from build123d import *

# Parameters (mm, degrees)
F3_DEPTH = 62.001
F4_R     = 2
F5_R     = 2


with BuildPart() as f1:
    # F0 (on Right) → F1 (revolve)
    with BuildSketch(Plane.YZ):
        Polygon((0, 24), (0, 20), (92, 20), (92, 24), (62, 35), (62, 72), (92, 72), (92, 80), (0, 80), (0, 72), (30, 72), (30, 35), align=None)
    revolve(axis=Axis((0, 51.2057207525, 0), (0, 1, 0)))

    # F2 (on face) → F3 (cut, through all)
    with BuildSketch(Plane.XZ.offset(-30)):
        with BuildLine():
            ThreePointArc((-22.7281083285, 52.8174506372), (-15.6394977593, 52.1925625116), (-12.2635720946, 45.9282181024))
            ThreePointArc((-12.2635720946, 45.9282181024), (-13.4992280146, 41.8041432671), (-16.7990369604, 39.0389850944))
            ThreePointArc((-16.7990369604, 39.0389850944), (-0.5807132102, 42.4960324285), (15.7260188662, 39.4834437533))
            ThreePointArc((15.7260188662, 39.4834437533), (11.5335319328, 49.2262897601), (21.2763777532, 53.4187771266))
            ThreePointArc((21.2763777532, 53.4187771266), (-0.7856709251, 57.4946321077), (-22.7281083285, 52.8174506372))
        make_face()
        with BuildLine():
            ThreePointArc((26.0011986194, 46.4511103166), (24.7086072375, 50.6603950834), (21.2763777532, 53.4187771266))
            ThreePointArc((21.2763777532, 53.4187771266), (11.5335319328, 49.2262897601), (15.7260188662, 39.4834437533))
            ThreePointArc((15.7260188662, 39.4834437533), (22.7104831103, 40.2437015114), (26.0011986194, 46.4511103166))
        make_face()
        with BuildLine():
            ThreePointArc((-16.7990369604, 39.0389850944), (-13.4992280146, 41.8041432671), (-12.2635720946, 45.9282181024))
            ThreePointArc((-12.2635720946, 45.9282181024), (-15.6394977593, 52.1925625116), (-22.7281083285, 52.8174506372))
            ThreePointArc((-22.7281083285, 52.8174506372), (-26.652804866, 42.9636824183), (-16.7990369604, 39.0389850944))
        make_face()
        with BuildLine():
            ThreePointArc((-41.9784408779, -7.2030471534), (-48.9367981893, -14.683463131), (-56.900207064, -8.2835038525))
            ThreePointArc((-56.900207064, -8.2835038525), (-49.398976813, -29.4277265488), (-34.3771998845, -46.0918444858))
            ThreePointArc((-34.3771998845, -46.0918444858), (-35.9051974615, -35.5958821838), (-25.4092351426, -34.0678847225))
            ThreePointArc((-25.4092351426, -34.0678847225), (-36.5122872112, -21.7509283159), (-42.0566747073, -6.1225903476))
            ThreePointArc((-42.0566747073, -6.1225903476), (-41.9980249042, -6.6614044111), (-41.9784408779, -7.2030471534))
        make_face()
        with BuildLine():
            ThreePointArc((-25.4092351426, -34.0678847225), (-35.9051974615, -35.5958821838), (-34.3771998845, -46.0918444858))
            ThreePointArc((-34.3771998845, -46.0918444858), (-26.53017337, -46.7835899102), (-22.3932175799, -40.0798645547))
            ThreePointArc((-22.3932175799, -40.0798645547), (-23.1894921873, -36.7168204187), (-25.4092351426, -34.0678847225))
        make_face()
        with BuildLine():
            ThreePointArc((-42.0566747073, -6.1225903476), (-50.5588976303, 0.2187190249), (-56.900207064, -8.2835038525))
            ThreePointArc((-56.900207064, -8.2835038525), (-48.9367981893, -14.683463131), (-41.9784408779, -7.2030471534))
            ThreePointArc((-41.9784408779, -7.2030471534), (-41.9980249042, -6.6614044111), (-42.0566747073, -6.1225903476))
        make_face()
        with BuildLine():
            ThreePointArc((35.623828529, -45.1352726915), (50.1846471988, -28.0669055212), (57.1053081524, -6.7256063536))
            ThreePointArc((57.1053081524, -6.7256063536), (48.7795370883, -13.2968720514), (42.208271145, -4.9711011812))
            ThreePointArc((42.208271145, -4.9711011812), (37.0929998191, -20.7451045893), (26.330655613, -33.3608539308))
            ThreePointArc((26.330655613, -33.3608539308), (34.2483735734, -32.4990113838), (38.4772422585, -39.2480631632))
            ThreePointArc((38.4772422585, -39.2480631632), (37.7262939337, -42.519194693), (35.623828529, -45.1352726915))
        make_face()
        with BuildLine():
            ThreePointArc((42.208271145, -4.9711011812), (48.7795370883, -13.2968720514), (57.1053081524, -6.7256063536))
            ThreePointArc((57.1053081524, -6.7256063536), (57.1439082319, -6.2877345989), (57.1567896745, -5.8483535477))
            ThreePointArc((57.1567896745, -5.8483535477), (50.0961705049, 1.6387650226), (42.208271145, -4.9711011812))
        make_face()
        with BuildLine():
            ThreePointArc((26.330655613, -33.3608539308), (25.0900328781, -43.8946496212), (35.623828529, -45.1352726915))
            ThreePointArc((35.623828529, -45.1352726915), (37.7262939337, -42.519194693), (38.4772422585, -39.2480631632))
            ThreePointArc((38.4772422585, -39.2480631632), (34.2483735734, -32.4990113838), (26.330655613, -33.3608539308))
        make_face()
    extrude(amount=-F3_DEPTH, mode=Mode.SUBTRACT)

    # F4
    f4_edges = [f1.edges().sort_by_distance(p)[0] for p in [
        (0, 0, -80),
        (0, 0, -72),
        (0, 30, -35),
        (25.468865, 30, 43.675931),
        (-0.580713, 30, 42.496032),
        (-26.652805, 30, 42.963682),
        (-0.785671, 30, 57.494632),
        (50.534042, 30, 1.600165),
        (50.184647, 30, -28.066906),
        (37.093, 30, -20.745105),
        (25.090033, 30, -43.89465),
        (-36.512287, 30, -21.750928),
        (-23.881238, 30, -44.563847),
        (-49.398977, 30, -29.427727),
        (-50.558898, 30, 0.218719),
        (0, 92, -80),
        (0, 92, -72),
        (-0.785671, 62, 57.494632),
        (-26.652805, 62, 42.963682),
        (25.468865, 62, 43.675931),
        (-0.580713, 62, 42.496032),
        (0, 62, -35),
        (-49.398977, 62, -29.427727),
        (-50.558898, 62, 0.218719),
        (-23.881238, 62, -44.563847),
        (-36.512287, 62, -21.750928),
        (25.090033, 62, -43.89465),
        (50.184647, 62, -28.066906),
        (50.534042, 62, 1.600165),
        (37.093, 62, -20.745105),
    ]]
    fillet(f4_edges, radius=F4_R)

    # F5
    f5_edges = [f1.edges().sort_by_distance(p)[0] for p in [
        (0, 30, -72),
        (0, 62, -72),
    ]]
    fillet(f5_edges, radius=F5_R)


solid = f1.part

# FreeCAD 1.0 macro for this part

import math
import FreeCAD as App
import Part
import Sketcher
Q = App.Units.Quantity


def edges_at(feature, points):
    """Names of the edges that pass closest to the given points."""
    edges = feature.Shape.Edges
    near = lambda p: min(range(len(edges)), key=lambda i: edges[i].distToShape(Part.Vertex(*p))[0])
    return sorted({f"Edge{near(p) + 1}" for p in points})


def add_polygon(sketch, points):
    """Adds a closed chain of lines whose ends are joined by coincident constraints."""
    first, n = sketch.GeometryCount, len(points)
    for a, b in zip(points, points[1:] + points[:1]):
        sketch.addGeometry(Part.LineSegment(App.Vector(*a, 0), App.Vector(*b, 0)), False)
    for i in range(n):
        sketch.addConstraint(Sketcher.Constraint("Coincident", first + i, 2, first + (i + 1) % n, 1))

doc = App.newDocument("Part")
params = doc.addObject("Spreadsheet::Sheet", "Params")
for row, (alias, value) in enumerate([
    ("sketch1_width", "92 mm"),
    ("sketch1_width2", "30 mm"),
    ("sketch1_height", "4 mm"),
    ("sketch1_height2", "37 mm"),
    ("sketch1_height3", "8 mm"),
    ("revolution_angle", "360 deg"),
    ("sketch2_radius", "42.5 mm"),
    ("sketch2_radius2", "7.5 mm"),
    ("fillet_radius", "2 mm"),
    ("fillet2_radius", "2 mm"),
], start=1):
    params.set(f"A{row}", alias)
    params.set(f"B{row}", "=" + value)
    params.setAlias(f"B{row}", alias)

body = doc.addObject("PartDesign::Body", "Body")

# Sketch on YZ plane
sketch1 = body.newObject("Sketcher::SketchObject", "Sketch")
sketch1.AttachmentSupport = (doc.getObject("YZ_Plane"), [""])
sketch1.MapMode = "FlatFace"
add_polygon(sketch1, [(0, 24), (0, 20), (92, 20), (92, 24), (62, 35), (62, 72), (92, 72), (92, 80), (0, 80), (0, 72), (30, 72), (30, 35)])  # lines 0-11
sketch1.addConstraint([
    Sketcher.Constraint("Vertical", 0),
    Sketcher.Constraint("Horizontal", 1),
    Sketcher.Constraint("Vertical", 2),
    Sketcher.Constraint("Vertical", 4),
    Sketcher.Constraint("Horizontal", 5),
    Sketcher.Constraint("Vertical", 6),
    Sketcher.Constraint("Horizontal", 7),
    Sketcher.Constraint("Vertical", 8),
    Sketcher.Constraint("Horizontal", 9),
    Sketcher.Constraint("Vertical", 10),
    Sketcher.Constraint("PointOnObject", 0, 2, -2),
    Sketcher.Constraint("PointOnObject", 7, 2, -2),
    Sketcher.Constraint("Horizontal", 5, 2, 8, 2),
    Sketcher.Constraint("Horizontal", 3, 2, 10, 2),
    Sketcher.Constraint("Horizontal", 2, 2, 11, 2),
    Sketcher.Constraint("Vertical", 2, 2, 5, 2),
    Sketcher.Constraint("Equal", 5, 9),
    Sketcher.Constraint("DistanceX", 1, 1, 1, 2, Q("92 mm")),
    Sketcher.Constraint("DistanceX", 5, 1, 5, 2, Q("30 mm")),
    Sketcher.Constraint("DistanceY", 0, 2, 0, 1, Q("4 mm")),
    Sketcher.Constraint("DistanceY", 4, 1, 4, 2, Q("37 mm")),
    Sketcher.Constraint("DistanceY", 6, 1, 6, 2, Q("8 mm")),
    Sketcher.Constraint("DistanceY", -1, 1, 0, 2, Q("20 mm")),
    Sketcher.Constraint("DistanceY", -1, 1, 3, 2, Q("35 mm")),
])
sketch1.setExpression("Constraints[29]", "Params.sketch1_width")
sketch1.setExpression("Constraints[30]", "Params.sketch1_width2")
sketch1.setExpression("Constraints[31]", "Params.sketch1_height")
sketch1.setExpression("Constraints[32]", "Params.sketch1_height2")
sketch1.setExpression("Constraints[33]", "Params.sketch1_height3")
revolution = body.newObject("PartDesign::Revolution", "Revolution")
revolution.Profile = sketch1
revolution.ReferenceAxis = (sketch1, ["H_Axis"])
revolution.setExpression("Angle", "Params.revolution_angle")

# Sketch on XZ plane
sketch2 = body.newObject("Sketcher::SketchObject", "Sketch001")
sketch2.AttachmentSupport = (doc.getObject("XZ_Plane"), [""])
sketch2.MapMode = "FlatFace"
sketch2.AttachmentOffset = App.Placement(App.Vector(0, 0, -30), App.Rotation())
sketch2.addGeometry([
    Part.ArcOfCircle(Part.Circle(App.Vector(0, 0, 0), App.Vector(0, 0, 1), 42.5), math.radians(68), math.radians(113)),  # 0
    Part.ArcOfCircle(Part.Circle(App.Vector(18.5, 46.5, 0), App.Vector(0, 0, 1), 7.5), math.radians(-112), math.radians(68)),  # 1
    Part.ArcOfCircle(Part.Circle(App.Vector(0, 0, 0), App.Vector(0, 0, 1), 57.5), math.radians(68), math.radians(113)),  # 2
    Part.ArcOfCircle(Part.Circle(App.Vector(-19.8, 45.9, 0), App.Vector(0, 0, 1), 7.5), math.radians(113), math.radians(293)),  # 3
    Part.ArcOfCircle(Part.Circle(App.Vector(0, 0, 0), App.Vector(0, 0, 1), 57.5), math.radians(-172), math.radians(-127)),  # 4
    Part.ArcOfCircle(Part.Circle(App.Vector(-29.9, -40.1, 0), App.Vector(0, 0, 1), 7.5), math.radians(-127), math.radians(0)),  # 5
    Part.ArcOfCircle(Part.Circle(App.Vector(-29.9, -40.1, 0), App.Vector(0, 0, 1), 7.5), math.radians(0), math.radians(53)),  # 6
    Part.ArcOfCircle(Part.Circle(App.Vector(0, 0, 0), App.Vector(0, 0, 1), 42.5), math.radians(-172), math.radians(-127)),  # 7
    Part.ArcOfCircle(Part.Circle(App.Vector(-49.5, -7.2, 0), App.Vector(0, 0, 1), 7.5), math.radians(8), math.radians(188)),  # 8
    Part.ArcOfCircle(Part.Circle(App.Vector(0, 0, 0), App.Vector(0, 0, 1), 57.5), math.radians(-52), math.radians(-7)),  # 9
    Part.ArcOfCircle(Part.Circle(App.Vector(49.7, -5.8, 0), App.Vector(0, 0, 1), 7.5), math.radians(-6.72), math.radians(0)),  # 10
    Part.ArcOfCircle(Part.Circle(App.Vector(49.7, -5.8, 0), App.Vector(0, 0, 1), 7.5), math.radians(0), math.radians(173)),  # 11
    Part.ArcOfCircle(Part.Circle(App.Vector(0, 0, 0), App.Vector(0, 0, 1), 42.5), math.radians(-52), math.radians(-7)),  # 12
    Part.ArcOfCircle(Part.Circle(App.Vector(31, -39.2, 0), App.Vector(0, 0, 1), 7.5), math.radians(128), math.radians(308)),  # 13
], False)
sketch2.addConstraint([
    Sketcher.Constraint("Tangent", 0, 1, 1, 1),
    Sketcher.Constraint("Tangent", 1, 2, 2, 1),
    Sketcher.Constraint("Tangent", 2, 2, 3, 1),
    Sketcher.Constraint("Tangent", 3, 2, 0, 2),
    Sketcher.Constraint("Tangent", 4, 2, 5, 1),
    Sketcher.Constraint("Tangent", 5, 2, 6, 1),
    Sketcher.Constraint("Tangent", 6, 2, 7, 2),
    Sketcher.Constraint("Tangent", 7, 1, 8, 1),
    Sketcher.Constraint("Tangent", 8, 2, 4, 1),
    Sketcher.Constraint("Tangent", 9, 2, 10, 1),
    Sketcher.Constraint("Tangent", 10, 2, 11, 1),
    Sketcher.Constraint("Tangent", 11, 2, 12, 2),
    Sketcher.Constraint("Tangent", 12, 1, 13, 1),
    Sketcher.Constraint("Tangent", 13, 2, 9, 1),
    Sketcher.Constraint("Coincident", 0, 3, -1, 1),
    Sketcher.Constraint("Coincident", 2, 3, -1, 1),
    Sketcher.Constraint("Coincident", 4, 3, -1, 1),
    Sketcher.Constraint("Coincident", 7, 3, -1, 1),
    Sketcher.Constraint("Coincident", 9, 3, -1, 1),
    Sketcher.Constraint("Coincident", 12, 3, -1, 1),
    Sketcher.Constraint("Equal", 2, 4),
    Sketcher.Constraint("Equal", 3, 5),
    Sketcher.Constraint("Equal", 5, 6),
    Sketcher.Constraint("Equal", 4, 9),
    Sketcher.Constraint("Equal", 8, 10),
    Sketcher.Constraint("Equal", 10, 11),
    Sketcher.Constraint("Horizontal", 6, 3, 5, 2),
    Sketcher.Constraint("Horizontal", 11, 3, 10, 2),
    Sketcher.Constraint("Radius", 0, Q("42.5 mm")),
    Sketcher.Constraint("Radius", 1, Q("7.5 mm")),
    Sketcher.Constraint("DistanceX", -1, 1, 1, 3, Q("18.501199 mm")),
    Sketcher.Constraint("DistanceX", 4, 2, -1, 1, Q("34.3772 mm")),
    Sketcher.Constraint("DistanceY", 11, 2, -1, 1, Q("4.971101 mm")),
    Sketcher.Constraint("DistanceY", 12, 1, 11, 3, Q("27.5125 mm")),
    Sketcher.Constraint("DistanceY", -1, 1, 3, 3, Q("45.928218 mm")),
    Sketcher.Constraint("DistanceX", 8, 3, -1, 1, Q("49.478441 mm")),
])
sketch2.setExpression("Constraints[28]", "Params.sketch2_radius")
sketch2.setExpression("Constraints[29]", "Params.sketch2_radius2")
pocket1 = body.newObject("PartDesign::Pocket", "Pocket")
pocket1.Profile = sketch2
pocket1.Type = "ThroughAll"
doc.recompute()

fillet = body.newObject("PartDesign::Fillet", "Fillet")
fillet.Base = (pocket1, edges_at(pocket1, [
    (0, 0, -80),
    (0, 0, -72),
    (0, 30, -35),
    (25.469, 30, 43.676),
    (-0.581, 30, 42.496),
    (-26.653, 30, 42.964),
    (-0.786, 30, 57.495),
    (50.096, 30, 1.639),
    (50.185, 30, -28.067),
    (37.093, 30, -20.745),
    (25.09, 30, -43.895),
    (-36.512, 30, -21.751),
    (-26.53, 30, -46.784),
    (-49.399, 30, -29.428),
    (-50.559, 30, 0.219),
    (0, 92, -80),
    (0, 92, -72),
    (-0.786, 62, 57.495),
    (-26.653, 62, 42.964),
    (25.469, 62, 43.676),
    (-0.581, 62, 42.496),
    (0, 62, -35),
    (-49.399, 62, -29.428),
    (-50.559, 62, 0.219),
    (-26.53, 62, -46.784),
    (-36.512, 62, -21.751),
    (25.09, 62, -43.895),
    (50.185, 62, -28.067),
    (50.096, 62, 1.639),
    (37.093, 62, -20.745),
]))
fillet.setExpression("Radius", "Params.fillet_radius")
doc.recompute()

fillet2 = body.newObject("PartDesign::Fillet", "Fillet001")
fillet2.Base = (fillet, edges_at(fillet, [(0, 30, -72), (0, 62, -72)]))
fillet2.setExpression("Radius", "Params.fillet2_radius")

doc.recompute()
